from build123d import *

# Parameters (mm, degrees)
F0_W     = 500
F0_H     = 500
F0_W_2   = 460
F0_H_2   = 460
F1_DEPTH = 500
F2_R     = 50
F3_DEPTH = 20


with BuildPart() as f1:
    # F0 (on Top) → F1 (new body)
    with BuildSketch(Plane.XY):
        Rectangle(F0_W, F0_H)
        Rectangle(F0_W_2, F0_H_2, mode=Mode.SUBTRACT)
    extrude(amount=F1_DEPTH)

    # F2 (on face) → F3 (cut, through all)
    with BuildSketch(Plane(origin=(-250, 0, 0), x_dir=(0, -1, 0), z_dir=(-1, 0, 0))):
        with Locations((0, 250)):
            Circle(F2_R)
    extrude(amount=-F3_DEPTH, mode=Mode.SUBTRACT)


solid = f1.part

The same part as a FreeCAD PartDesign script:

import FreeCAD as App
import Part
import Sketcher

V = App.Vector

doc = App.newDocument("Part")
body = doc.addObject("PartDesign::Body", "Body")

# Sketch on XY plane
sketch1 = body.newObject("Sketcher::SketchObject", "Sketch")
sketch1.AttachmentSupport = (doc.getObject("XY_Plane"), [""])
sketch1.MapMode = "FlatFace"
sketch1.addGeometry([
    Part.LineSegment(V(-250, 250, 0), V(-250, -250, 0)),  # 0
    Part.LineSegment(V(-250, -250, 0), V(250, -250, 0)),  # 1
    Part.LineSegment(V(250, -250, 0), V(250, 250, 0)),  # 2
    Part.LineSegment(V(250, 250, 0), V(-250, 250, 0)),  # 3
    Part.LineSegment(V(230, -230, 0), V(-230, -230, 0)),  # 4
    Part.LineSegment(V(-230, -230, 0), V(-230, 230, 0)),  # 5
    Part.LineSegment(V(-230, 230, 0), V(230, 230, 0)),  # 6
    Part.LineSegment(V(230, 230, 0), V(230, -230, 0)),  # 7
], False)
sketch1.addConstraint([
    Sketcher.Constraint("Coincident", 0, 2, 1, 1),
    Sketcher.Constraint("Coincident", 1, 2, 2, 1),
    Sketcher.Constraint("Coincident", 2, 2, 3, 1),
    Sketcher.Constraint("Coincident", 3, 2, 0, 1),
    Sketcher.Constraint("Coincident", 4, 2, 5, 1),
    Sketcher.Constraint("Coincident", 5, 2, 6, 1),
    Sketcher.Constraint("Coincident", 6, 2, 7, 1),
    Sketcher.Constraint("Coincident", 7, 2, 4, 1),
    Sketcher.Constraint("Vertical", 0),
    Sketcher.Constraint("Horizontal", 1),
    Sketcher.Constraint("Vertical", 2),
    Sketcher.Constraint("Horizontal", 3),
    Sketcher.Constraint("Horizontal", 4),
    Sketcher.Constraint("Vertical", 5),
    Sketcher.Constraint("Horizontal", 6),
    Sketcher.Constraint("Vertical", 7),
    Sketcher.Constraint("Symmetric", 0, 2, 2, 2, -1, 1),
    Sketcher.Constraint("Symmetric", 4, 2, 6, 2, -1, 1),
    Sketcher.Constraint("Equal", 3, 0),
    Sketcher.Constraint("Equal", 6, 5),
    Sketcher.Constraint("DistanceX", 1, 1, 1, 2, 500.0),
    Sketcher.Constraint("DistanceX", 4, 2, 4, 1, 460.0),
])
pad1 = body.newObject("PartDesign::Pad", "Pad")
pad1.Profile = sketch1
pad1.Length = 500

# Sketch on YZ plane
sketch2 = body.newObject("Sketcher::SketchObject", "Sketch001")
sketch2.AttachmentSupport = (doc.getObject("YZ_Plane"), [""])
sketch2.MapMode = "FlatFace"
sketch2.AttachmentOffset = App.Placement(V(0, 0, -250), App.Rotation())
sketch2.addGeometry(Part.Circle(V(0, 250, 0), V(0, 0, 1), 50), False)
sketch2.addConstraint([
    Sketcher.Constraint("PointOnObject", 0, 3, -2),
    Sketcher.Constraint("Diameter", 0, 100.0),
    Sketcher.Constraint("DistanceY", -1, 1, 0, 3, 250.0),
])
pocket1 = body.newObject("PartDesign::Pocket", "Pocket")
pocket1.Profile = sketch2
pocket1.Length = 20
pocket1.Reversed = True

doc.recompute()
